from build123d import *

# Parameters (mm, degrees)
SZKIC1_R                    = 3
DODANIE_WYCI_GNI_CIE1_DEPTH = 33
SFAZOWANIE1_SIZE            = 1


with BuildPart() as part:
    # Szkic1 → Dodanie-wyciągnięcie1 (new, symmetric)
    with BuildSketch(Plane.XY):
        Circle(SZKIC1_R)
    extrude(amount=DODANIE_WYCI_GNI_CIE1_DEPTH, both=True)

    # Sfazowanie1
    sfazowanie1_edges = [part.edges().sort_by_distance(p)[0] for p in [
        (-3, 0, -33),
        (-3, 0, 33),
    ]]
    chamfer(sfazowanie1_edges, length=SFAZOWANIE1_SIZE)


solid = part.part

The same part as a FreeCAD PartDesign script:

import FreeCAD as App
import Part
import Sketcher

V = App.Vector


def edges_at(feature, points):
    """Names of the edges that pass closest to the given points."""
    edges = feature.Shape.Edges
    near = lambda p: min(range(len(edges)), key=lambda i: edges[i].distToShape(Part.Vertex(*p))[0])
    return sorted({f"Edge{near(p) + 1}" for p in points})

doc = App.newDocument("Part")
body = doc.addObject("PartDesign::Body", "Body")

# Sketch on XY plane
sketch1 = doc.addObject("Sketcher::SketchObject", "Sketch")
body.addObject(sketch1)
sketch1.AttachmentSupport = (doc.XY_Plane, [""])
sketch1.MapMode = "FlatFace"
sketch1.addGeometry(Part.Circle(V(0, 0, 0), V(0, 0, 1), 3), False)
sketch1.addConstraint(Sketcher.Constraint("Coincident", 0, 3, -1, 1))
sketch1.addConstraint(Sketcher.Constraint("Diameter", 0, 6.0))
pad1 = doc.addObject("PartDesign::Pad", "Pad")
body.addObject(pad1)
pad1.Profile = sketch1
pad1.Length = 66
pad1.Midplane = True
doc.recompute()

chamfer = doc.addObject("PartDesign::Chamfer", "Chamfer")
body.addObject(chamfer)
chamfer.Base = (pad1, edges_at(pad1, [(-3, 0, -33), (-3, 0, 33)]))
chamfer.Size = 1

doc.recompute()
